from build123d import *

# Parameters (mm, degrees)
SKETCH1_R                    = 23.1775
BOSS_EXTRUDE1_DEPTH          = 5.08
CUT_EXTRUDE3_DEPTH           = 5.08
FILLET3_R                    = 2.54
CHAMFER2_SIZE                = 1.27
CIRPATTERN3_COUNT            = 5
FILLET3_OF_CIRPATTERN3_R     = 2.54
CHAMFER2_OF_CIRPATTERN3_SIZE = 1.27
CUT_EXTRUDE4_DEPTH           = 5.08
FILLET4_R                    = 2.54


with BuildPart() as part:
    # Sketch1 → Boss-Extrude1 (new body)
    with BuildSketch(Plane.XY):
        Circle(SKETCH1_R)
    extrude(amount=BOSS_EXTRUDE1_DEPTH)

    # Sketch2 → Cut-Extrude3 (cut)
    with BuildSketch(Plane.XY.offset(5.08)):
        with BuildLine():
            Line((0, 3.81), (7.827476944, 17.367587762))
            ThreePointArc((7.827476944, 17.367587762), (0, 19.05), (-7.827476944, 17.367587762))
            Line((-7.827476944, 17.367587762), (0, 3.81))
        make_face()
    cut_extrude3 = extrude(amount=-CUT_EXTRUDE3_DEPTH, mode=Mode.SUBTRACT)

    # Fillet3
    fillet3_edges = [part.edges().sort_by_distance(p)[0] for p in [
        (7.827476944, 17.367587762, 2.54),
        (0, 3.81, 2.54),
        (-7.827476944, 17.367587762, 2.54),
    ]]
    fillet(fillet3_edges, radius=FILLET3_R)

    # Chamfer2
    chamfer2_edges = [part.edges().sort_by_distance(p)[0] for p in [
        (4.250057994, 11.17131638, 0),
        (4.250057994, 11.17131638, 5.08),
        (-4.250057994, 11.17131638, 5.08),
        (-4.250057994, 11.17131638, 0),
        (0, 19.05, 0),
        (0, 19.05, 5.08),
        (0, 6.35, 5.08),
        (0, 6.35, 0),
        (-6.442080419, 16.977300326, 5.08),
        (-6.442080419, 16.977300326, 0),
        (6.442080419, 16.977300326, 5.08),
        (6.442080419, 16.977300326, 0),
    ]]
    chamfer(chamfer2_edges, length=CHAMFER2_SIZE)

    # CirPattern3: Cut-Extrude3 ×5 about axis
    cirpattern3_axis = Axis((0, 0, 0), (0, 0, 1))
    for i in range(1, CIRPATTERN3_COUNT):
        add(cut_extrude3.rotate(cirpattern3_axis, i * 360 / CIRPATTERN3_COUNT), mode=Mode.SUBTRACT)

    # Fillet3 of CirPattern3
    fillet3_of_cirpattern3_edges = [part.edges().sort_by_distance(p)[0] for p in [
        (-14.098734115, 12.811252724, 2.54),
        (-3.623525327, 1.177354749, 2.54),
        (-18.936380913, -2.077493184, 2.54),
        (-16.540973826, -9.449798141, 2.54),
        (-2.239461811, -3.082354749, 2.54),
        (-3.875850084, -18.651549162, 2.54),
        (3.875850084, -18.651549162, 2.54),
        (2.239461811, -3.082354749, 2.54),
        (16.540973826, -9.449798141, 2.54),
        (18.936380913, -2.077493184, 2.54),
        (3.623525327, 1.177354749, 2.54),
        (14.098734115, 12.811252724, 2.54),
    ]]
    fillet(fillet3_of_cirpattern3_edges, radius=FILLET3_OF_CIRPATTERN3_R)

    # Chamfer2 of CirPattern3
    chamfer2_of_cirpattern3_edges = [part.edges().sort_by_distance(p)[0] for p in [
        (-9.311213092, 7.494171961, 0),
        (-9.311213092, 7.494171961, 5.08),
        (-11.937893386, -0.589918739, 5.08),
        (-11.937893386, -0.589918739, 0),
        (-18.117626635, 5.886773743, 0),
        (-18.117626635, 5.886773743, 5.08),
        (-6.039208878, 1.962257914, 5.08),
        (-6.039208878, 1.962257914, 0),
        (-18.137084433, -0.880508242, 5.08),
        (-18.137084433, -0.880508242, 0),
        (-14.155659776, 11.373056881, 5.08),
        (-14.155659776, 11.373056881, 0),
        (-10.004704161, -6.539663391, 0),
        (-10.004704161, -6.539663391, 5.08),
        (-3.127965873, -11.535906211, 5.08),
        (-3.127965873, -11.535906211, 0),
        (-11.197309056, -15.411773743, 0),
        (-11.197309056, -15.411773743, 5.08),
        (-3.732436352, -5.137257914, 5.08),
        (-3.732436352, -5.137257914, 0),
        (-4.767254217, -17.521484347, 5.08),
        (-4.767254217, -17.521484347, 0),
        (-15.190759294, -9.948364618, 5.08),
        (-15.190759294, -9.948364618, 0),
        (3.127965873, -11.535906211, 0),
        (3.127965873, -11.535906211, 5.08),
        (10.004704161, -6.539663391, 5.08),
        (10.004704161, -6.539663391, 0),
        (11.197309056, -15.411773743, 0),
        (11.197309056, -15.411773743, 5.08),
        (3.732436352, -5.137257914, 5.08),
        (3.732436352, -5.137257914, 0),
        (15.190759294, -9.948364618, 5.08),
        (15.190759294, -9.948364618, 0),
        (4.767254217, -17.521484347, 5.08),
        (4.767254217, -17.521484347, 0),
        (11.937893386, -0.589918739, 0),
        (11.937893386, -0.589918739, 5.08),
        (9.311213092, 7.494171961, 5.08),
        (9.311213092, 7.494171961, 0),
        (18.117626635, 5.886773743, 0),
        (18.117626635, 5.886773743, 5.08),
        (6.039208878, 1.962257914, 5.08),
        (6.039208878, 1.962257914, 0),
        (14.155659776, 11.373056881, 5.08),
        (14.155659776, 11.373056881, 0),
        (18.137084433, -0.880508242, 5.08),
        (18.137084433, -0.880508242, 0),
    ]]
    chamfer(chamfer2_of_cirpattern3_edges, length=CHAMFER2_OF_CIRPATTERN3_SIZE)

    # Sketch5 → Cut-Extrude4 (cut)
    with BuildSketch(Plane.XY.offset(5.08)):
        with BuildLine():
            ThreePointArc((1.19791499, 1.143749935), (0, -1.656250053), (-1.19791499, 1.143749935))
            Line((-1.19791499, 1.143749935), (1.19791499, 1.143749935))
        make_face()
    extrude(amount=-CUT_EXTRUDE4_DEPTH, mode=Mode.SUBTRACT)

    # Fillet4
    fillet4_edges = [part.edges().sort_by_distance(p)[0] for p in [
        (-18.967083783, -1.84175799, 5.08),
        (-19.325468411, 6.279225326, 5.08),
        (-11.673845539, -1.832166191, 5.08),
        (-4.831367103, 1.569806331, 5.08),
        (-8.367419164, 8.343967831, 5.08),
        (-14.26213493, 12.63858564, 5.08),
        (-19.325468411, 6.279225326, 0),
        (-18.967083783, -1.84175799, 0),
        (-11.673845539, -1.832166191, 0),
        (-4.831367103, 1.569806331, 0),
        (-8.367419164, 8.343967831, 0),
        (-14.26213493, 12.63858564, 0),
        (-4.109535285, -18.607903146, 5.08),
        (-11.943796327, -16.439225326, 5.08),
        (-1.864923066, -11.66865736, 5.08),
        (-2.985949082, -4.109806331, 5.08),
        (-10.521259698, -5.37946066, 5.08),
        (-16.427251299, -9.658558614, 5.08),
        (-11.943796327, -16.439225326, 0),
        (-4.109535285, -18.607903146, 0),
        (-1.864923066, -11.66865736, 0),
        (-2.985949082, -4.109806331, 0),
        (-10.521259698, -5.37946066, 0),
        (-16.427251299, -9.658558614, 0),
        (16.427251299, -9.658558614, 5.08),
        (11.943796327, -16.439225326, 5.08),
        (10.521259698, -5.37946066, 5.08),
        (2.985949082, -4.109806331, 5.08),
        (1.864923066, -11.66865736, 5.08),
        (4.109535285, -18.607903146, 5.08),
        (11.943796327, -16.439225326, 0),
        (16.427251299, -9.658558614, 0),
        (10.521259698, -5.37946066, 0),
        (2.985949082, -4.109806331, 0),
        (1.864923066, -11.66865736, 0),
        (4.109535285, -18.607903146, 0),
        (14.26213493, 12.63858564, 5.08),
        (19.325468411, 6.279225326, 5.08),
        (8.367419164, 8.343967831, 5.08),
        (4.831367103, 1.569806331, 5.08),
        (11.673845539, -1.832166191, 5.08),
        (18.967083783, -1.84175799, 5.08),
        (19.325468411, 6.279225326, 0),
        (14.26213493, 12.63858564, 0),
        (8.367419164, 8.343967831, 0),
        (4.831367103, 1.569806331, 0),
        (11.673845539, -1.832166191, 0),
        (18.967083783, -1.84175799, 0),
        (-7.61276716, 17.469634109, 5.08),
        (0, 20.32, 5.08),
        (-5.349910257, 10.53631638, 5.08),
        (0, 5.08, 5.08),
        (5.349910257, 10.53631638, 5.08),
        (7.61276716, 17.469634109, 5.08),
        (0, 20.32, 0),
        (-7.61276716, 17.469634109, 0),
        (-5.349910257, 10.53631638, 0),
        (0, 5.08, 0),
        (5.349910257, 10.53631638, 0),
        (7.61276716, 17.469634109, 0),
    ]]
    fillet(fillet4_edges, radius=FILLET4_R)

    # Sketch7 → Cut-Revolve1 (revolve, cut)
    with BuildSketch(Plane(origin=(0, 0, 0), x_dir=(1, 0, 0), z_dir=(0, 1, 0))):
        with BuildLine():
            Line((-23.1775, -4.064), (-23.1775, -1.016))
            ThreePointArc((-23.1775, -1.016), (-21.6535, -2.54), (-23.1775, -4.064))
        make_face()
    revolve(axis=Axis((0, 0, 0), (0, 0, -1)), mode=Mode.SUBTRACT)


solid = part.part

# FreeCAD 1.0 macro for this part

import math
import FreeCAD as App
import Part
import Sketcher

V = App.Vector
Q = App.Units.Quantity


def edges_at(feature, points):
    """Names of the edges that pass closest to the given points."""
    edges = feature.Shape.Edges
    near = lambda p: min(range(len(edges)), key=lambda i: edges[i].distToShape(Part.Vertex(*p))[0])
    return sorted({f"Edge{near(p) + 1}" for p in points})

doc = App.newDocument("Part")
body = doc.addObject("PartDesign::Body", "Body")

sketch1 = doc.addObject("Sketcher::SketchObject", "Sketch")
body.addObject(sketch1)
sketch1.AttachmentSupport = (doc.XY_Plane, [""])
sketch1.MapMode = "FlatFace"
sketch1.addGeometry(Part.Circle(V(0, 0, 0), V(0, 0, 1), 23), False)
sketch1.addConstraint([
    Sketcher.Constraint("Coincident", 0, 3, -1, 1),
    Sketcher.Constraint("Diameter", 0, Q("1.825 in")),
])
pad1 = doc.addObject("PartDesign::Pad", "Pad")
body.addObject(pad1)
pad1.Profile = sketch1
pad1.Length = Q("0.2 in")

sketch2 = doc.addObject("Sketcher::SketchObject", "Sketch001")
body.addObject(sketch2)
sketch2.AttachmentSupport = (doc.XY_Plane, [""])
sketch2.MapMode = "FlatFace"
sketch2.AttachmentOffset = App.Placement(V(0, 0, 0.2 * 25.4), App.Rotation())
sketch2.addGeometry([
    Part.LineSegment(V(0, 4, 0), V(8, 17, 0)),
    Part.ArcOfCircle(Part.Circle(V(0, 0, 0), V(0, 0, 1), 19), math.radians(66), math.radians(114)),
    Part.LineSegment(V(-8, 17, 0), V(0, 4, 0)),
], False)
sketch2.addConstraint([
    Sketcher.Constraint("Coincident", 0, 2, 1, 1),
    Sketcher.Constraint("Coincident", 1, 2, 2, 1),
    Sketcher.Constraint("Coincident", 2, 2, 0, 1),
    Sketcher.Constraint("Coincident", 1, 3, -1, 1),
    Sketcher.Constraint("PointOnObject", 2, 2, -2),
    Sketcher.Constraint("Horizontal", 0, 2, 1, 2),
    Sketcher.Constraint("Radius", 1, Q("0.75 in")),
    Sketcher.Constraint("Angle", 0, Q("60 deg")),
    Sketcher.Constraint("DistanceY", -1, 1, 2, 2, Q("0.15 in")),
])
pocket1 = doc.addObject("PartDesign::Pocket", "Pocket")
body.addObject(pocket1)
pocket1.Profile = sketch2
pocket1.Length = Q("0.2 in")
doc.recompute()

fillet = doc.addObject("PartDesign::Fillet", "Fillet")
body.addObject(fillet)
fillet.Base = (pocket1, edges_at(pocket1, [(7.827, 17.368, 2.54), (0, 3.81, 2.54), (-7.827, 17.368, 2.54)]))
fillet.Radius = Q("0.1 in")
doc.recompute()

chamfer = doc.addObject("PartDesign::Chamfer", "Chamfer")
body.addObject(chamfer)
chamfer.Base = (fillet, edges_at(fillet, [
    (4.25, 11.171, 0),
    (4.25, 11.171, 5.08),
    (-4.25, 11.171, 5.08),
    (-4.25, 11.171, 0),
    (0, 19.05, 0),
    (0, 19.05, 5.08),
    (0, 6.35, 5.08),
    (0, 6.35, 0),
    (-6.442, 16.977, 5.08),
    (-6.442, 16.977, 0),
    (6.442, 16.977, 5.08),
    (6.442, 16.977, 0),
]))
chamfer.Size = Q("0.05 in")
doc.recompute()

polarpattern = doc.addObject("PartDesign::PolarPattern", "PolarPattern")
body.addObject(polarpattern)
polarpattern.Originals = [pocket1]
polarpattern.Axis = (doc.Z_Axis, [""])
polarpattern.Angle = 360
polarpattern.Occurrences = 5
body.Tip = polarpattern
doc.recompute()

fillet2 = doc.addObject("PartDesign::Fillet", "Fillet001")
body.addObject(fillet2)
fillet2.Base = (polarpattern, edges_at(polarpattern, [
    (-14.099, 12.811, 2.54),
    (-3.624, 1.177, 2.54),
    (-18.936, -2.077, 2.54),
    (-16.541, -9.45, 2.54),
    (-2.239, -3.082, 2.54),
    (-3.876, -18.652, 2.54),
    (3.876, -18.652, 2.54),
    (2.239, -3.082, 2.54),
    (16.541, -9.45, 2.54),
    (18.936, -2.077, 2.54),
    (3.624, 1.177, 2.54),
    (14.099, 12.811, 2.54),
]))
fillet2.Radius = Q("0.1 in")
doc.recompute()

chamfer2 = doc.addObject("PartDesign::Chamfer", "Chamfer001")
body.addObject(chamfer2)
chamfer2.Base = (fillet2, edges_at(fillet2, [
    (-9.311, 7.494, 0),
    (-9.311, 7.494, 5.08),
    (-11.938, -0.59, 5.08),
    (-11.938, -0.59, 0),
    (-18.118, 5.887, 0),
    (-18.118, 5.887, 5.08),
    (-6.039, 1.962, 5.08),
    (-6.039, 1.962, 0),
    (-18.137, -0.881, 5.08),
    (-18.137, -0.881, 0),
    (-14.156, 11.373, 5.08),
    (-14.156, 11.373, 0),
    (-10.005, -6.54, 0),
    (-10.005, -6.54, 5.08),
    (-3.128, -11.536, 5.08),
    (-3.128, -11.536, 0),
    (-11.197, -15.412, 0),
    (-11.197, -15.412, 5.08),
    (-3.732, -5.137, 5.08),
    (-3.732, -5.137, 0),
    (-4.767, -17.521, 5.08),
    (-4.767, -17.521, 0),
    (-15.191, -9.948, 5.08),
    (-15.191, -9.948, 0),
    (3.128, -11.536, 0),
    (3.128, -11.536, 5.08),
    (10.005, -6.54, 5.08),
    (10.005, -6.54, 0),
    (11.197, -15.412, 0),
    (11.197, -15.412, 5.08),
    (3.732, -5.137, 5.08),
    (3.732, -5.137, 0),
    (15.191, -9.948, 5.08),
    (15.191, -9.948, 0),
    (4.767, -17.521, 5.08),
    (4.767, -17.521, 0),
    (11.938, -0.59, 0),
    (11.938, -0.59, 5.08),
    (9.311, 7.494, 5.08),
    (9.311, 7.494, 0),
    (18.118, 5.887, 0),
    (18.118, 5.887, 5.08),
    (6.039, 1.962, 5.08),
    (6.039, 1.962, 0),
    (14.156, 11.373, 5.08),
    (14.156, 11.373, 0),
    (18.137, -0.881, 5.08),
    (18.137, -0.881, 0),
]))
chamfer2.Size = Q("0.05 in")

sketch3 = doc.addObject("Sketcher::SketchObject", "Sketch002")
body.addObject(sketch3)
sketch3.AttachmentSupport = (doc.XY_Plane, [""])
sketch3.MapMode = "FlatFace"
sketch3.AttachmentOffset = App.Placement(V(0, 0, 0.2 * 25.4), App.Rotation())
sketch3.addGeometry([
    Part.ArcOfCircle(Part.Circle(V(0, 0, 0), V(0, 0, 1), 1.7), math.radians(136), math.radians(404)),
    Part.LineSegment(V(1.2, 1.1, 0), V(-1.2, 1.1, 0)),
], False)
sketch3.addConstraint([
    Sketcher.Constraint("Coincident", 0, 1, 1, 2),
    Sketcher.Constraint("Coincident", 1, 1, 0, 2),
    Sketcher.Constraint("Horizontal", 1),
    Sketcher.Constraint("Coincident", 0, 3, -1, 1),
    Sketcher.Constraint("Radius", 0, Q("1.65625 mm")),
    Sketcher.Constraint("DistanceX", 1, 2, 1, 1, Q("2.39583 mm")),
])
pocket2 = doc.addObject("PartDesign::Pocket", "Pocket001")
body.addObject(pocket2)
pocket2.Profile = sketch3
pocket2.Length = Q("0.2 in")
doc.recompute()

fillet3 = doc.addObject("PartDesign::Fillet", "Fillet002")
body.addObject(fillet3)
fillet3.Base = (pocket2, edges_at(pocket2, [
    (-18.967, -1.842, 5.08),
    (-19.325, 6.279, 5.08),
    (-11.674, -1.832, 5.08),
    (-4.831, 1.57, 5.08),
    (-8.367, 8.344, 5.08),
    (-14.262, 12.639, 5.08),
    (-19.325, 6.279, 0),
    (-18.967, -1.842, 0),
    (-11.674, -1.832, 0),
    (-4.831, 1.57, 0),
    (-8.367, 8.344, 0),
    (-14.262, 12.639, 0),
    (-4.11, -18.608, 5.08),
    (-11.944, -16.439, 5.08),
    (-1.865, -11.669, 5.08),
    (-2.986, -4.11, 5.08),
    (-10.521, -5.379, 5.08),
    (-16.427, -9.659, 5.08),
    (-11.944, -16.439, 0),
    (-4.11, -18.608, 0),
    (-1.865, -11.669, 0),
    (-2.986, -4.11, 0),
    (-10.521, -5.379, 0),
    (-16.427, -9.659, 0),
    (16.427, -9.659, 5.08),
    (11.944, -16.439, 5.08),
    (10.521, -5.379, 5.08),
    (2.986, -4.11, 5.08),
    (1.865, -11.669, 5.08),
    (4.11, -18.608, 5.08),
    (11.944, -16.439, 0),
    (16.427, -9.659, 0),
    (10.521, -5.379, 0),
    (2.986, -4.11, 0),
    (1.865, -11.669, 0),
    (4.11, -18.608, 0),
    (14.262, 12.639, 5.08),
    (19.325, 6.279, 5.08),
    (8.367, 8.344, 5.08),
    (4.831, 1.57, 5.08),
    (11.674, -1.832, 5.08),
    (18.967, -1.842, 5.08),
    (19.325, 6.279, 0),
    (14.262, 12.639, 0),
    (8.367, 8.344, 0),
    (4.831, 1.57, 0),
    (11.674, -1.832, 0),
    (18.967, -1.842, 0),
    (-7.613, 17.47, 5.08),
    (0, 20.32, 5.08),
    (-5.35, 10.536, 5.08),
    (0, 5.08, 5.08),
    (5.35, 10.536, 5.08),
    (7.613, 17.47, 5.08),
    (0, 20.32, 0),
    (-7.613, 17.47, 0),
    (-5.35, 10.536, 0),
    (0, 5.08, 0),
    (5.35, 10.536, 0),
    (7.613, 17.47, 0),
]))
fillet3.Radius = Q("0.1 in")

sketch4 = doc.addObject("Sketcher::SketchObject", "Sketch003")
body.addObject(sketch4)
sketch4.AttachmentSupport = (doc.XZ_Plane, [""])
sketch4.MapMode = "FlatFace"
sketch4.addGeometry([
    Part.LineSegment(V(-23.2, 1, 0), V(-23.2, 4.1, 0)),
    Part.ArcOfCircle(Part.Circle(V(-23.2, 2.5, 0), V(0, 0, 1), 1.5), math.radians(-90), math.radians(90)),
], False)
sketch4.addConstraint([
    Sketcher.Constraint("Coincident", 0, 1, 1, 1),
    Sketcher.Constraint("Coincident", 1, 2, 0, 2),
    Sketcher.Constraint("Vertical", 0),
    Sketcher.Constraint("Vertical", 1, 3, 0, 1),
    Sketcher.Constraint("Radius", 1, Q("0.06 in")),
    Sketcher.Constraint("DistanceY", -1, 1, 1, 3, Q("0.1 in")),
    Sketcher.Constraint("DistanceX", 1, 3, -1, 1, Q("0.9125 in")),
])
groove = doc.addObject("PartDesign::Groove", "Groove")
body.addObject(groove)
groove.Profile = sketch4
groove.ReferenceAxis = (sketch4, ["V_Axis"])
groove.Angle = 360

doc.recompute()
